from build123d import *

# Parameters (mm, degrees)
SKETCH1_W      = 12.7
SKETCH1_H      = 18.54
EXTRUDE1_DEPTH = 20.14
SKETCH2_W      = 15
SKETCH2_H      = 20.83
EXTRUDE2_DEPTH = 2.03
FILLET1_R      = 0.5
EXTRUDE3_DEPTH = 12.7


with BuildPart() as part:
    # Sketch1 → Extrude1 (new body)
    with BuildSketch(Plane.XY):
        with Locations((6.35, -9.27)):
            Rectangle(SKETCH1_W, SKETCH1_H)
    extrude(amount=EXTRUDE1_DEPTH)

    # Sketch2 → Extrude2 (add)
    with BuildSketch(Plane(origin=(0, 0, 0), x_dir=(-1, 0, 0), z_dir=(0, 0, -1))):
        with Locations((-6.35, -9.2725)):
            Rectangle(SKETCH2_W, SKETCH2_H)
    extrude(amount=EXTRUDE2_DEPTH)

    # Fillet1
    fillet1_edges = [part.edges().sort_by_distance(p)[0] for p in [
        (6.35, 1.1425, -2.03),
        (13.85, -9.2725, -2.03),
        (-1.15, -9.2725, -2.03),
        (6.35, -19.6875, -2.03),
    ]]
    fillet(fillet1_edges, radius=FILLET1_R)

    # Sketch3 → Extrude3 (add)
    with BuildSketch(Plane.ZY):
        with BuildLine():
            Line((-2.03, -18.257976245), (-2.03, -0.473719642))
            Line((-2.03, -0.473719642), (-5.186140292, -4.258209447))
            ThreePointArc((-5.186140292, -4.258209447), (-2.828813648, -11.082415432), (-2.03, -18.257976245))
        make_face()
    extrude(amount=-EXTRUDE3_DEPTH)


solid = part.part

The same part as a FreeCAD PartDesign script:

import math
import FreeCAD as App
import Part
import Sketcher
from FreeCAD import Vector
Q = App.Units.Quantity


def edges_at(feature, points):
    """Names of the edges that pass closest to the given points."""
    edges = feature.Shape.Edges
    near = lambda p: min(range(len(edges)), key=lambda i: edges[i].distToShape(Part.Vertex(*p))[0])
    return sorted({f"Edge{near(p) + 1}" for p in points})


def add_polygon(sketch, points):
    """Adds a closed chain of lines whose ends are joined by coincident constraints."""
    first, n = sketch.GeometryCount, len(points)
    for a, b in zip(points, points[1:] + points[:1]):
        sketch.addGeometry(Part.LineSegment(App.Vector(*a, 0), App.Vector(*b, 0)), False)
    for i in range(n):
        sketch.addConstraint(Sketcher.Constraint("Coincident", first + i, 2, first + (i + 1) % n, 1))

doc = App.newDocument("Part")
body = doc.addObject("PartDesign::Body", "Body")

sketch1 = doc.addObject("Sketcher::SketchObject", "Sketch")
body.addObject(sketch1)
sketch1.AttachmentSupport = (doc.XY_Plane, [""])
sketch1.MapMode = "FlatFace"
add_polygon(sketch1, [(0, 0), (0, -19), (13, -19), (13, 0)])
sketch1.addConstraint([
    Sketcher.Constraint("Vertical", 0),
    Sketcher.Constraint("Horizontal", 1),
    Sketcher.Constraint("Vertical", 2),
    Sketcher.Constraint("Horizontal", 3),
    Sketcher.Constraint("Coincident", 3, 2, -1, 1),
    Sketcher.Constraint("DistanceX", 1, 1, 1, 2, Q("12.7 mm")),
    Sketcher.Constraint("DistanceY", 0, 2, 0, 1, Q("18.54 mm")),
])
pad1 = doc.addObject("PartDesign::Pad", "Pad")
body.addObject(pad1)
pad1.Profile = sketch1
pad1.Length = 20.14

sketch2 = doc.addObject("Sketcher::SketchObject", "Sketch001")
body.addObject(sketch2)
sketch2.AttachmentSupport = (doc.XY_Plane, [""])
sketch2.MapMode = "FlatFace"
add_polygon(sketch2, [(14, 1), (14, -20), (-1, -20), (-1, 1)])
sketch2.addConstraint([
    Sketcher.Constraint("Vertical", 0),
    Sketcher.Constraint("Horizontal", 1),
    Sketcher.Constraint("Vertical", 2),
    Sketcher.Constraint("Horizontal", 3),
    Sketcher.Constraint("DistanceX", 1, 2, 1, 1, Q("15 mm")),
    Sketcher.Constraint("DistanceY", 0, 2, 0, 1, Q("20.83 mm")),
    Sketcher.Constraint("DistanceX", -1, 1, 0, 2, Q("13.85 mm")),
    Sketcher.Constraint("DistanceY", 0, 2, -1, 1, Q("19.6875 mm")),
])
pad2 = doc.addObject("PartDesign::Pad", "Pad001")
body.addObject(pad2)
pad2.Profile = sketch2
pad2.Length = 2.03
pad2.Reversed = True
doc.recompute()

fillet = doc.addObject("PartDesign::Fillet", "Fillet")
body.addObject(fillet)
fillet.Base = (pad2, edges_at(pad2, [
    (6.35, 1.143, -2.03),
    (13.85, -9.273, -2.03),
    (-1.15, -9.273, -2.03),
    (6.35, -19.688, -2.03),
]))
fillet.Radius = 0.5

sketch3 = doc.addObject("Sketcher::SketchObject", "Sketch002")
body.addObject(sketch3)
sketch3.AttachmentSupport = (doc.YZ_Plane, [""])
sketch3.MapMode = "FlatFace"
sketch3.addGeometry([
    Part.LineSegment(Vector(-18.3, -2, 0), Vector(-0.5, -2, 0)),
    Part.LineSegment(Vector(-0.5, -2, 0), Vector(-4.3, -5.2, 0)),
    Part.ArcOfCircle(Part.Circle(Vector(-18.3, -34.7, 0), Vector(0, 0, 1), 32.6), math.radians(65), math.radians(90)),
], False)
sketch3.addConstraint([
    Sketcher.Constraint("Coincident", 0, 2, 1, 1),
    Sketcher.Constraint("Coincident", 1, 2, 2, 1),
    Sketcher.Constraint("Tangent", 2, 2, 0, 1),
    Sketcher.Constraint("Horizontal", 0),
    Sketcher.Constraint("DistanceY", 0, 2, -1, 1, Q("2.03 mm")),
    Sketcher.Constraint("Radius", 2, Q("32.62762 mm")),
    Sketcher.Constraint("DistanceX", 0, 1, 0, 2, Q("17.784257 mm")),
    Sketcher.Constraint("DistanceX", 0, 2, -1, 1, Q("0.47372 mm")),
    Sketcher.Constraint("DistanceX", 1, 2, -1, 1, Q("4.258209 mm")),
])
pad3 = doc.addObject("PartDesign::Pad", "Pad002")
body.addObject(pad3)
pad3.Profile = sketch3
pad3.Length = 12.7

doc.recompute()
